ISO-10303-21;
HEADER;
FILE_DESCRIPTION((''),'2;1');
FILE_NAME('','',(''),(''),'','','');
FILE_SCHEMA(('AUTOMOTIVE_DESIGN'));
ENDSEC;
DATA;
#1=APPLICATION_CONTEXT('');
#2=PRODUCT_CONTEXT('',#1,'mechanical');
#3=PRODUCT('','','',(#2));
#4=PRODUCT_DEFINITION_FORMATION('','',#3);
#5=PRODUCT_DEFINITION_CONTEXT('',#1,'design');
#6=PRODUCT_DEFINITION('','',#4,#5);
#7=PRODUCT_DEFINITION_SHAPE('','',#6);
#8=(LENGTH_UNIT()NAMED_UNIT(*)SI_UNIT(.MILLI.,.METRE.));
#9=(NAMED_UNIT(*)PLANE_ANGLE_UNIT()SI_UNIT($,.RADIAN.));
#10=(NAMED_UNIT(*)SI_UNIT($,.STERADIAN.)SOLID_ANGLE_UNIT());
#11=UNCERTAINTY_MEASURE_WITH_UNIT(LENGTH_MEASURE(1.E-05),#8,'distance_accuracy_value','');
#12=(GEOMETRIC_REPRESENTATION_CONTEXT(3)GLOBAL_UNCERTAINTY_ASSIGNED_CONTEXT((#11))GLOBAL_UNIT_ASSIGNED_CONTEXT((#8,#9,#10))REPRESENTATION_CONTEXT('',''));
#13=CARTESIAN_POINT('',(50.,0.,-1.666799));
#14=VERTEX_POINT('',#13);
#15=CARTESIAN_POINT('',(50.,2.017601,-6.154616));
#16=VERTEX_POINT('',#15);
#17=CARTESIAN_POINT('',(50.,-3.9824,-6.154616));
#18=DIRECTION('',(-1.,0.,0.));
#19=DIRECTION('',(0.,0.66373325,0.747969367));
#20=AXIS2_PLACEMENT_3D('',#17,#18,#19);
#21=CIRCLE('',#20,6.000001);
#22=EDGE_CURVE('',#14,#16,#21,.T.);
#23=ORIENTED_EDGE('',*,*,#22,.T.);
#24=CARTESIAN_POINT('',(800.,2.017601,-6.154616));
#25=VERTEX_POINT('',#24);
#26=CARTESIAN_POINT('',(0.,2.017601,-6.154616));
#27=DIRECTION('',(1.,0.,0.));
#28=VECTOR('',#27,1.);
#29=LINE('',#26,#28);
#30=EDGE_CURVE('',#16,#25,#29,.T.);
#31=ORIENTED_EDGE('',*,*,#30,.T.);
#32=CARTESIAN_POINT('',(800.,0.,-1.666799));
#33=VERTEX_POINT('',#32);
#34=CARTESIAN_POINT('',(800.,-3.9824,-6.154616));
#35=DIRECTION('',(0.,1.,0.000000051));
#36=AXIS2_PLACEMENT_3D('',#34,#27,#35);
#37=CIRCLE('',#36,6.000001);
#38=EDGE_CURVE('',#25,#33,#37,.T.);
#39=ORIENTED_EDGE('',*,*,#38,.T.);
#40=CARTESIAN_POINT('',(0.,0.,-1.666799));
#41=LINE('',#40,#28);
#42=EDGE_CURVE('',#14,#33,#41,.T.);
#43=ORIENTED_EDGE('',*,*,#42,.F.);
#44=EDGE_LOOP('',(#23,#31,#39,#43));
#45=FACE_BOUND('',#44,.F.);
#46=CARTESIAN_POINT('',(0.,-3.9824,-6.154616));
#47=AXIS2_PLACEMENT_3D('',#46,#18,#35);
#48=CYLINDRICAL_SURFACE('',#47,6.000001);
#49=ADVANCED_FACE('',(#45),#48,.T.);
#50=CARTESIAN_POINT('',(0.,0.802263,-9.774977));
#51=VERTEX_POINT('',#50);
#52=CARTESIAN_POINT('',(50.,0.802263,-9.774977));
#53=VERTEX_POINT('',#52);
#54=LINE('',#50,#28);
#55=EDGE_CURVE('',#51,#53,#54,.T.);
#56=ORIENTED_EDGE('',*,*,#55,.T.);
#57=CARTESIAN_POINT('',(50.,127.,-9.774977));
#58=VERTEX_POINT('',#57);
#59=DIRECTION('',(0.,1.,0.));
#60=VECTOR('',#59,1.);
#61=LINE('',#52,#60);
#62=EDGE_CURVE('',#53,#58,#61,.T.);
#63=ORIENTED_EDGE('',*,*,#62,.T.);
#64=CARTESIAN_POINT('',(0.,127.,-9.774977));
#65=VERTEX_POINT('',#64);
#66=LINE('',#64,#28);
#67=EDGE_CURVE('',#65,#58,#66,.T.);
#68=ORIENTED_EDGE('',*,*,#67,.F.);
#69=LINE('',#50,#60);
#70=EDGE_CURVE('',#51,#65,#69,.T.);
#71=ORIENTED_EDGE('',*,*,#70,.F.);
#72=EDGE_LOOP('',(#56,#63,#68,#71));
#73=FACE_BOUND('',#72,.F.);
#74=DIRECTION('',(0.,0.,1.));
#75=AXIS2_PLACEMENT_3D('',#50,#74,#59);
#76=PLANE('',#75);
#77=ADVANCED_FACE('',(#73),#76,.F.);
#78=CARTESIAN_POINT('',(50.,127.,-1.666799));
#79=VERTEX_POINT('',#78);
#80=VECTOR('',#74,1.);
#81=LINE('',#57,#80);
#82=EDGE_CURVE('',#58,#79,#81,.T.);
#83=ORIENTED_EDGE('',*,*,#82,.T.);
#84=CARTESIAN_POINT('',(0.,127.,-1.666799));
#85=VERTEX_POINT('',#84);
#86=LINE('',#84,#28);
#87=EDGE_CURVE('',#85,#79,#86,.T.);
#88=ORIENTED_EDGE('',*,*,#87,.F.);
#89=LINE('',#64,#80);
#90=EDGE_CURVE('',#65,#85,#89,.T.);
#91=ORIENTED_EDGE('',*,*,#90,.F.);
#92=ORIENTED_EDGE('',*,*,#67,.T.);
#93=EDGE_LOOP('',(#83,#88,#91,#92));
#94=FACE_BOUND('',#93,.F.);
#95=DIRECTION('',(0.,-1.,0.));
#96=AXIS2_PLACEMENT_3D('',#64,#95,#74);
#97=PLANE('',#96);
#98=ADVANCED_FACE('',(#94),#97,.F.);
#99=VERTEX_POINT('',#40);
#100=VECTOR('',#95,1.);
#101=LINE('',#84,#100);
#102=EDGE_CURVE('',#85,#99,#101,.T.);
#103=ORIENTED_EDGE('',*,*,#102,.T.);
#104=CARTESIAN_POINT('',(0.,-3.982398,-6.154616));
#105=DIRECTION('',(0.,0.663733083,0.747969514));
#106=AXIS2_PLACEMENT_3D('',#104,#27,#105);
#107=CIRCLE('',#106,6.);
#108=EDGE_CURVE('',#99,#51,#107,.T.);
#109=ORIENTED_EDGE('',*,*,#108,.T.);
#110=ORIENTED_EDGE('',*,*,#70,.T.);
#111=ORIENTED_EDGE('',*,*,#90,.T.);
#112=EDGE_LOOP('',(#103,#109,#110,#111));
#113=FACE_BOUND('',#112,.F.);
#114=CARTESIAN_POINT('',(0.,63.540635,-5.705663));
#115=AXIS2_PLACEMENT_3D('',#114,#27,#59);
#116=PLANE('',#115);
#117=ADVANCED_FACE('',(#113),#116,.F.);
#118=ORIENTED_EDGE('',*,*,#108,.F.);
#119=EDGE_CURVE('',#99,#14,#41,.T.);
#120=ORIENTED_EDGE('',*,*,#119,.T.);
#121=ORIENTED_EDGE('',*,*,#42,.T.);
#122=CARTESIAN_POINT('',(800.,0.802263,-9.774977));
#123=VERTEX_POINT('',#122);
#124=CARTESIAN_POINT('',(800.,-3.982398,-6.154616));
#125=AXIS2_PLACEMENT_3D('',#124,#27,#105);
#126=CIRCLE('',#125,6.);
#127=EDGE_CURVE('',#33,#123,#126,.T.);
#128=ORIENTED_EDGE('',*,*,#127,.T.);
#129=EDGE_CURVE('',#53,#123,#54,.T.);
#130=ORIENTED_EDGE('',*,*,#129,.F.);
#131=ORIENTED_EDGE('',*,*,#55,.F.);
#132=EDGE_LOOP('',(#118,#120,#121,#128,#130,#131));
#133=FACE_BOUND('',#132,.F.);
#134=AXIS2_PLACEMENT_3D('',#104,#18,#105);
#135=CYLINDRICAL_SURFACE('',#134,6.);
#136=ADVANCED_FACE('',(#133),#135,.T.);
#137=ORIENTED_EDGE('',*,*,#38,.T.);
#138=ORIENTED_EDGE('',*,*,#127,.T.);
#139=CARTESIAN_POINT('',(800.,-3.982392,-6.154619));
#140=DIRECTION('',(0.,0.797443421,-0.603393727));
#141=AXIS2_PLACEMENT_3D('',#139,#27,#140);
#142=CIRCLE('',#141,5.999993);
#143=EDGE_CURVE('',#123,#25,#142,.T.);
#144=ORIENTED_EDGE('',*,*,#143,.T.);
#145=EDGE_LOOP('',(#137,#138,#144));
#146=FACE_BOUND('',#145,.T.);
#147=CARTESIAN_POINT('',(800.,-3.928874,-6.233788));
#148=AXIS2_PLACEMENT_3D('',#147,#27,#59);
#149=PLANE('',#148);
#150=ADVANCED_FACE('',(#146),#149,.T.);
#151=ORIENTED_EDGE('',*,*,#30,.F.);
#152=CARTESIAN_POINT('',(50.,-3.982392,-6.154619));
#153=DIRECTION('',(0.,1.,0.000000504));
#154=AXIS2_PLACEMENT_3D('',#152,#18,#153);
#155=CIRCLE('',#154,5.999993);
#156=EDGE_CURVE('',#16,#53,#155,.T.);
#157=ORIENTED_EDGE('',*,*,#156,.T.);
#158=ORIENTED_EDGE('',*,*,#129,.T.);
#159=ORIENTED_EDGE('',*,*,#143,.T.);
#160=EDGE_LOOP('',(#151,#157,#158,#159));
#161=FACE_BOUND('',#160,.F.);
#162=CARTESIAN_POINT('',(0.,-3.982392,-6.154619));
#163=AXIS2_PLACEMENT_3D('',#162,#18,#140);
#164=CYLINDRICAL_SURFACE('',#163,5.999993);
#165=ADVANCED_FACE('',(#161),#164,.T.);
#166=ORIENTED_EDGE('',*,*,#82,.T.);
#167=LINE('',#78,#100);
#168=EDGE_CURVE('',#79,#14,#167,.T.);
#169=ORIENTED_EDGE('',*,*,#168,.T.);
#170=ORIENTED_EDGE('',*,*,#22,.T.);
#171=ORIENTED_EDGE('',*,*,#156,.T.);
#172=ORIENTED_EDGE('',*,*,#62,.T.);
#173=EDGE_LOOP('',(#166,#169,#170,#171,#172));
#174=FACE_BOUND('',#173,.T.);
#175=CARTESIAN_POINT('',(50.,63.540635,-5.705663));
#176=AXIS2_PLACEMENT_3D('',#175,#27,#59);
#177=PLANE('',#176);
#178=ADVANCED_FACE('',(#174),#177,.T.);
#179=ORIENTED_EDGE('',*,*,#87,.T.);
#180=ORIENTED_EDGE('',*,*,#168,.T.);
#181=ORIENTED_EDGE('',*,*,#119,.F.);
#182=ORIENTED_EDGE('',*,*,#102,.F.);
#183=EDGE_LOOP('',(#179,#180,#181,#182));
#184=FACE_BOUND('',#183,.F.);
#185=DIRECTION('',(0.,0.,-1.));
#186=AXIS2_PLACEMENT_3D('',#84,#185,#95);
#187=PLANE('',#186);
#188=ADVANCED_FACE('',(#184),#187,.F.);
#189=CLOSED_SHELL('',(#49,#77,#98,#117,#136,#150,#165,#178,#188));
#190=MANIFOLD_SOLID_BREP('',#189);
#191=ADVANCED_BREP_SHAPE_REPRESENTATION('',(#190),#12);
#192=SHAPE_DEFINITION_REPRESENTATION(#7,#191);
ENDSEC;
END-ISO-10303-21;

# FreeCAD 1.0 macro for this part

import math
import FreeCAD as App
import Part
import Sketcher
from FreeCAD import Vector
Q = App.Units.Quantity

doc = App.newDocument("Part")
body = doc.addObject("PartDesign::Body", "Body")

# Sketch on YZ plane
sketch1 = doc.addObject("Sketcher::SketchObject", "Sketch")
body.addObject(sketch1)
sketch1.AttachmentSupport = (doc.YZ_Plane, [""])
sketch1.MapMode = "FlatFace"
sketch1.addGeometry([
    Part.ArcOfCircle(Part.Circle(Vector(-4, -6.2, 0), Vector(0, 0, 1), 6), math.radians(48), math.radians(323)),
    Part.ArcOfCircle(Part.Circle(Vector(-4, -6.2, 0), Vector(0, 0, 1), 6), math.radians(-37), math.radians(0)),
    Part.ArcOfCircle(Part.Circle(Vector(-4, -6.2, 0), Vector(0, 0, 1), 6), math.radians(0), math.radians(48)),
], False)
sketch1.addConstraint([
    Sketcher.Constraint("Tangent", 0, 2, 1, 1),
    Sketcher.Constraint("Tangent", 1, 2, 2, 1),
    Sketcher.Constraint("Tangent", 2, 2, 0, 1),
    Sketcher.Constraint("PointOnObject", 2, 2, -2),
    Sketcher.Constraint("Horizontal", 2, 3, 1, 2),
    Sketcher.Constraint("Radius", 0, Q("6 mm")),
    Sketcher.Constraint("DistanceX", 0, 3, -1, 1, Q("3.982398 mm")),
    Sketcher.Constraint("DistanceY", 2, 2, -1, 1, Q("1.666799 mm")),
    Sketcher.Constraint("DistanceX", 0, 3, 0, 2, Q("4.784661 mm")),
])
pad1 = doc.addObject("PartDesign::Pad", "Pad")
body.addObject(pad1)
pad1.Profile = sketch1
pad1.Length = 800

# Sketch on YZ plane
sketch2 = doc.addObject("Sketcher::SketchObject", "Sketch001")
body.addObject(sketch2)
sketch2.AttachmentSupport = (doc.YZ_Plane, [""])
sketch2.MapMode = "FlatFace"
sketch2.addGeometry([
    Part.ArcOfCircle(Part.Circle(Vector(-4, -6.2, 0), Vector(0, 0, 1), 6), math.radians(0), math.radians(48)),  # 0
    Part.ArcOfCircle(Part.Circle(Vector(-4, -6.2, 0), Vector(0, 0, 1), 6), math.radians(-37), math.radians(0)),  # 1
    Part.LineSegment(Vector(0.8, -9.8, 0), Vector(127, -9.8, 0)),  # 2
    Part.LineSegment(Vector(127, -9.8, 0), Vector(127, -1.7, 0)),  # 3
    Part.LineSegment(Vector(127, -1.7, 0), Vector(0, -1.7, 0)),  # 4
], False)
sketch2.addConstraint([
    Sketcher.Constraint("Tangent", 0, 1, 1, 2),
    Sketcher.Constraint("Coincident", 1, 1, 2, 1),
    Sketcher.Constraint("Coincident", 2, 2, 3, 1),
    Sketcher.Constraint("Coincident", 3, 2, 4, 1),
    Sketcher.Constraint("Coincident", 4, 2, 0, 2),
    Sketcher.Constraint("Horizontal", 2),
    Sketcher.Constraint("Vertical", 3),
    Sketcher.Constraint("Horizontal", 4),
    Sketcher.Constraint("PointOnObject", 4, 2, -2),
    Sketcher.Constraint("Radius", 0, Q("6.000001 mm")),
    Sketcher.Constraint("DistanceX", 4, 2, 4, 1, Q("127 mm")),
    Sketcher.Constraint("Radius", 1, Q("5.999993 mm")),
    Sketcher.Constraint("DistanceX", 0, 3, -1, 1, Q("3.9824 mm")),
    Sketcher.Constraint("DistanceY", 3, 2, -1, 1, Q("1.666799 mm")),
    Sketcher.Constraint("DistanceX", 2, 1, 2, 2, Q("126.197737 mm")),
    Sketcher.Constraint("DistanceY", 1, 1, 0, 1, Q("3.620361 mm")),
])
pad2 = doc.addObject("PartDesign::Pad", "Pad001")
body.addObject(pad2)
pad2.Profile = sketch2
pad2.Length = 50

doc.recompute()
